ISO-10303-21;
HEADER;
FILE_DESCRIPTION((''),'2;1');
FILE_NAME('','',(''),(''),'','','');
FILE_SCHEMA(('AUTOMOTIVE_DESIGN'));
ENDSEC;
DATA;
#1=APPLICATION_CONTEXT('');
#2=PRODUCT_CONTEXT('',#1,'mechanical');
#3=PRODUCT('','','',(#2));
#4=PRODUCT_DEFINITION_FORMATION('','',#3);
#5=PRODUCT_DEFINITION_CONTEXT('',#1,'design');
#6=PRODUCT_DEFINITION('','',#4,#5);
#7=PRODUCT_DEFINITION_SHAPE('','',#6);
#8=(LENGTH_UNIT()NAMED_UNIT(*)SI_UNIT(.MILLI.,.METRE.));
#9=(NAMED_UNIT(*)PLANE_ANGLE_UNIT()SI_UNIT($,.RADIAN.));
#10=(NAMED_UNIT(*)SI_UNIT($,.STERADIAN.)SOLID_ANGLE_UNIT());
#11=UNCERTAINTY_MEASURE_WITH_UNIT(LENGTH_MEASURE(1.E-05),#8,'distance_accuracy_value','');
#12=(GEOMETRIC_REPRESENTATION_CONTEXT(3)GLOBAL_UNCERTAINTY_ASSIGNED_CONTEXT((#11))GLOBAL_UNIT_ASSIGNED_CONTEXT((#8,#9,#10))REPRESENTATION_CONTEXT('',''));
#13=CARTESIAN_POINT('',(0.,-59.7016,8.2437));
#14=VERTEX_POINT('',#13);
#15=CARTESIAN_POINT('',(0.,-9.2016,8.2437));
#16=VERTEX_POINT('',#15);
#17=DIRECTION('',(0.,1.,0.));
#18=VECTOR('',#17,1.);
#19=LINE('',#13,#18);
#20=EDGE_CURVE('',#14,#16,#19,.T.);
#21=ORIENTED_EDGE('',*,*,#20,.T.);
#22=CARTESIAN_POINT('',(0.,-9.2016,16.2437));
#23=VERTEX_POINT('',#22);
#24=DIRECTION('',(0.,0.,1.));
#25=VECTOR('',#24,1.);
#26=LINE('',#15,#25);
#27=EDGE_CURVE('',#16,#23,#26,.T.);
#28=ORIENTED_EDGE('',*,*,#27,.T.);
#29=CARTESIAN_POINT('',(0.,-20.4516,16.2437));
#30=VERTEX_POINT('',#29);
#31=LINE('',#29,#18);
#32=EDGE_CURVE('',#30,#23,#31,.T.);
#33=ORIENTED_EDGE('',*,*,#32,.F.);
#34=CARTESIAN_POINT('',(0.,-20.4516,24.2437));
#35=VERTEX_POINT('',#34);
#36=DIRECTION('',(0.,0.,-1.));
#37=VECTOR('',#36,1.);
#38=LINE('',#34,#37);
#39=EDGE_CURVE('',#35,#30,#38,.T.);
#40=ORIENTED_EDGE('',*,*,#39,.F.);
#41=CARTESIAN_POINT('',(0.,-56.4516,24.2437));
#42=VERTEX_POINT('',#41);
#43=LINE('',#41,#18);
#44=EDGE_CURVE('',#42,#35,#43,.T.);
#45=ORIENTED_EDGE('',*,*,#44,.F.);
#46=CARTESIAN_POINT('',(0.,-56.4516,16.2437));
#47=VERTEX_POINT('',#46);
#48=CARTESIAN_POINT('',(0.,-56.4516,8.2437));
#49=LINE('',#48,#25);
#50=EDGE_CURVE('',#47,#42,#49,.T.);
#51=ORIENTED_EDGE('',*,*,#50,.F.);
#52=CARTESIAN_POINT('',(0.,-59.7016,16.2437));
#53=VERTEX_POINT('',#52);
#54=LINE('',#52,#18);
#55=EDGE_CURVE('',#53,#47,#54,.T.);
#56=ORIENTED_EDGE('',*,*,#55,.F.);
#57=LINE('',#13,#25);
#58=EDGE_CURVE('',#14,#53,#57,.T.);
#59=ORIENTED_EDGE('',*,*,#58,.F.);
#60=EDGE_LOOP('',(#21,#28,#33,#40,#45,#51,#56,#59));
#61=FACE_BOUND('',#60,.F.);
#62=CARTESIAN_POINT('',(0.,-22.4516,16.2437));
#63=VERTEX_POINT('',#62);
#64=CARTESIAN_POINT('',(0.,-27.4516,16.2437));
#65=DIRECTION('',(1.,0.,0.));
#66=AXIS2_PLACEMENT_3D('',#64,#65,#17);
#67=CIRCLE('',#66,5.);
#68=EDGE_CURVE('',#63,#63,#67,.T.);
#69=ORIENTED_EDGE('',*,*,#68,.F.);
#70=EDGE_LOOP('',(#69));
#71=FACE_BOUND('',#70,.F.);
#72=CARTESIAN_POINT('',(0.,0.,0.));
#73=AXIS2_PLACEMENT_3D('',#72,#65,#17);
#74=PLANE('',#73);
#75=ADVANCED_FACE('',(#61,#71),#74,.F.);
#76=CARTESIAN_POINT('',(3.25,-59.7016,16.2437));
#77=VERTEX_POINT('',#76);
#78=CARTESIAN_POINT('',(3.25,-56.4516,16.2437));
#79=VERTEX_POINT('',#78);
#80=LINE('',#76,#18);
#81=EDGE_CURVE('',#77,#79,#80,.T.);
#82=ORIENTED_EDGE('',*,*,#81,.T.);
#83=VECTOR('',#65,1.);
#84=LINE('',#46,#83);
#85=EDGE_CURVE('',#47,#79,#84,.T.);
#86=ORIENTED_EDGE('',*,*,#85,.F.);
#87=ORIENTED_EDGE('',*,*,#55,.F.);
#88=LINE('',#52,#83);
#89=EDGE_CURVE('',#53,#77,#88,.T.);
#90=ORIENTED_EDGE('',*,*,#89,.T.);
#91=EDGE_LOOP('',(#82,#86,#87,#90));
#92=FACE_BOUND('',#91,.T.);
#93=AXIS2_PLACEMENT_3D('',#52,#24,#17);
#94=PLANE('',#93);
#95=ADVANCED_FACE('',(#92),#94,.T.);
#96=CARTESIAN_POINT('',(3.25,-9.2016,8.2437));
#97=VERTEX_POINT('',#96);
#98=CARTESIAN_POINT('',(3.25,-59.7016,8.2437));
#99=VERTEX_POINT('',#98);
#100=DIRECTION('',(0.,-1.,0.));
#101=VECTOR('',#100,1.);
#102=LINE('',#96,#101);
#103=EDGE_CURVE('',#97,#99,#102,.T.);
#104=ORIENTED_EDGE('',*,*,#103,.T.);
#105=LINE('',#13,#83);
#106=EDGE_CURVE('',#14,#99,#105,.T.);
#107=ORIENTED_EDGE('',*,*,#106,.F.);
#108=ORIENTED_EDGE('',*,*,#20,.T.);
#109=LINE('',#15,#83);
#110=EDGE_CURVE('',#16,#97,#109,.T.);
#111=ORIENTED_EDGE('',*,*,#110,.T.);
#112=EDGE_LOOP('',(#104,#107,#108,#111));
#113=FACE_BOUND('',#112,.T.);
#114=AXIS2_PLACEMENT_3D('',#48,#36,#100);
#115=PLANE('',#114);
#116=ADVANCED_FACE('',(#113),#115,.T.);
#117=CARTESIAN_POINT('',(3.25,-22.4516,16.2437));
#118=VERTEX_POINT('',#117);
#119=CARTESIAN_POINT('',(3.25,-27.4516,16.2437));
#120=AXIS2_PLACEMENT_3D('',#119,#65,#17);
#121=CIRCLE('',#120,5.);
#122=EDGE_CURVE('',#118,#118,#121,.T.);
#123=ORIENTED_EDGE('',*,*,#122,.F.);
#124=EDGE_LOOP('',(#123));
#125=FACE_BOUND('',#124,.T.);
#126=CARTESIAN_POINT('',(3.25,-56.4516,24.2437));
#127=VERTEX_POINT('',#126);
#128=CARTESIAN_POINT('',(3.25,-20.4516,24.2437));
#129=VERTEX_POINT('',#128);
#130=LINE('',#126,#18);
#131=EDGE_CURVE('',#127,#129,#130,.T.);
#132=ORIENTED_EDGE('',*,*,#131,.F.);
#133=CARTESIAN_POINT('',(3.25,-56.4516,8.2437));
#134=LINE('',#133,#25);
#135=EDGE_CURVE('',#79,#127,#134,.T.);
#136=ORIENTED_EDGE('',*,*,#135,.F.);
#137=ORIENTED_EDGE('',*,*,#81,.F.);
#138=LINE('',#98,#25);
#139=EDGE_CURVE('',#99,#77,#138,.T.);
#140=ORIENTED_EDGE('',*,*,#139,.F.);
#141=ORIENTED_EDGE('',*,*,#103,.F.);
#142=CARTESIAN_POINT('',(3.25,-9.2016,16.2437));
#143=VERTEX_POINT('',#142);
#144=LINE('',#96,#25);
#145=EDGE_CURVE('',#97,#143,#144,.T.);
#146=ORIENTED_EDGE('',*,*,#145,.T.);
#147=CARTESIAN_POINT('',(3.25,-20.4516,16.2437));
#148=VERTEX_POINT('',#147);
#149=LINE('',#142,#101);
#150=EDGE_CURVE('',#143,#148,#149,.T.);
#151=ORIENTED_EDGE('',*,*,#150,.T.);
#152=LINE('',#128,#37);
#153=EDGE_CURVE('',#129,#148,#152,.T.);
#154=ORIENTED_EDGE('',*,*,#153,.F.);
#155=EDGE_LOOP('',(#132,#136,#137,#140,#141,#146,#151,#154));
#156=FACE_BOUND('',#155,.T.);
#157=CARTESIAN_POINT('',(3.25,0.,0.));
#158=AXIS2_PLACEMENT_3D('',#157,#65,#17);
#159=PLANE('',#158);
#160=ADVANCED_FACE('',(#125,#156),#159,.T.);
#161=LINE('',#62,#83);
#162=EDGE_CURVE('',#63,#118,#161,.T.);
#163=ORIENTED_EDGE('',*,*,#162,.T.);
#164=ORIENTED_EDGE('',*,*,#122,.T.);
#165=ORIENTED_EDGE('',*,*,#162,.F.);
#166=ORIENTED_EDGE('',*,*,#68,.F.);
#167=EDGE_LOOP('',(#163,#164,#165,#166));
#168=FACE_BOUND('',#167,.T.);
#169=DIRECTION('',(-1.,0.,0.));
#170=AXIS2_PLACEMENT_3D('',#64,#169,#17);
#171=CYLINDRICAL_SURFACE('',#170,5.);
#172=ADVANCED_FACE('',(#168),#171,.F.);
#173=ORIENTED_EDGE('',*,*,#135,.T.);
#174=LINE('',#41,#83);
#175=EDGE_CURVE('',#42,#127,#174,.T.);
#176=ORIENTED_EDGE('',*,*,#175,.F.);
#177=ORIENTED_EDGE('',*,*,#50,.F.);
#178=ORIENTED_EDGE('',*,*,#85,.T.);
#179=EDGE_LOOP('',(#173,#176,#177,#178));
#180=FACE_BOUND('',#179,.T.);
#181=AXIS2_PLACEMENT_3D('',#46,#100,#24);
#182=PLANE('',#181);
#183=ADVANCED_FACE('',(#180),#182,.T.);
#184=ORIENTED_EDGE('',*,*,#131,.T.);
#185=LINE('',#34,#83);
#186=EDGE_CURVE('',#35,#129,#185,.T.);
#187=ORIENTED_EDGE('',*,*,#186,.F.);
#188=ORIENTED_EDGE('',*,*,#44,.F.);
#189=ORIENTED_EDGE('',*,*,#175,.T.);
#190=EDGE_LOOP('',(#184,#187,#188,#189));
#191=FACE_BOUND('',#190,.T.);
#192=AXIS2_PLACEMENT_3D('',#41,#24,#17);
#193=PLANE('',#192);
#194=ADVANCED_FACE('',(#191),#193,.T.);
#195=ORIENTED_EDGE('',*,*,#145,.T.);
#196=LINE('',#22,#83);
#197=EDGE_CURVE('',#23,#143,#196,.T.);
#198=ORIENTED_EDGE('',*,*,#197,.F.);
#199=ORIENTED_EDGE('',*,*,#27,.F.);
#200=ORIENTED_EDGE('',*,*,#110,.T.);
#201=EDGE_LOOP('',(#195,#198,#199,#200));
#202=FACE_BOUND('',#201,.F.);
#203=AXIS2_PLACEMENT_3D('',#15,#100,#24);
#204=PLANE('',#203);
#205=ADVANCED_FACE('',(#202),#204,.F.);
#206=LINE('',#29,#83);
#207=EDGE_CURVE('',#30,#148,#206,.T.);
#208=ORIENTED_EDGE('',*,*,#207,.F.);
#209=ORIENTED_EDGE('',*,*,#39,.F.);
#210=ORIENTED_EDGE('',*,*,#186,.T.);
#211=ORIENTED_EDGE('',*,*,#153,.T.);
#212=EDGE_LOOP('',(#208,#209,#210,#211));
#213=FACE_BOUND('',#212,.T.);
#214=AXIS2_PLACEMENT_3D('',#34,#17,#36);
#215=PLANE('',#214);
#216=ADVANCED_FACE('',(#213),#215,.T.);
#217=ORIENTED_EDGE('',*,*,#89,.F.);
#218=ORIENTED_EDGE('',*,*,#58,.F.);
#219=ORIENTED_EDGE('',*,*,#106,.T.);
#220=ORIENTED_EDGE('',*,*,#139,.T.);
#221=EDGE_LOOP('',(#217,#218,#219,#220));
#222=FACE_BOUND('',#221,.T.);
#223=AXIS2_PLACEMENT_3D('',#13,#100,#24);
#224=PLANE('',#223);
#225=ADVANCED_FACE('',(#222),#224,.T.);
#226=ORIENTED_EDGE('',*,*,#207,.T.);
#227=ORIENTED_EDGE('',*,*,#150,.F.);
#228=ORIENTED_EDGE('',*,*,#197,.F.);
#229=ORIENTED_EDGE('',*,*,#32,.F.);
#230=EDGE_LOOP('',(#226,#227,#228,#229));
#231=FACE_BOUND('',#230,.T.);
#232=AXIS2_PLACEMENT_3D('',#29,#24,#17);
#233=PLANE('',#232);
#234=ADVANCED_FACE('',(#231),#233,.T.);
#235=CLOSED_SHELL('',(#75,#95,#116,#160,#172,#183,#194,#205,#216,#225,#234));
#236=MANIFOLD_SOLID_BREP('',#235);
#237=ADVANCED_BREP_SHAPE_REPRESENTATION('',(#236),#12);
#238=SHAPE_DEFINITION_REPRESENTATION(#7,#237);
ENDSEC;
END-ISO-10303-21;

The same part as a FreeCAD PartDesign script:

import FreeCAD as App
import Part
import Sketcher

V = App.Vector


def add_polygon(sketch, points):
    """Adds a closed chain of lines whose ends are joined by coincident constraints."""
    first, n = sketch.GeometryCount, len(points)
    for a, b in zip(points, points[1:] + points[:1]):
        sketch.addGeometry(Part.LineSegment(App.Vector(*a, 0), App.Vector(*b, 0)), False)
    for i in range(n):
        sketch.addConstraint(Sketcher.Constraint("Coincident", first + i, 2, first + (i + 1) % n, 1))

doc = App.newDocument("Part")
params = doc.addObject("Spreadsheet::Sheet", "Params")
for row, (alias, value) in enumerate([
    ("sketch1_diameter", "10 mm"),
    ("sketch1_width", "36 mm"),
    ("sketch1_height", "8 mm"),
    ("sketch1_width2", "3.25 mm"),
    ("sketch1_width3", "50.5 mm"),
    ("pad1_length", "3.25 mm"),
], start=1):
    params.set(f"A{row}", alias)
    params.set(f"B{row}", "=" + value)
    params.setAlias(f"B{row}", alias)

body = doc.addObject("PartDesign::Body", "Body")

# Sketch on YZ plane
sketch1 = body.newObject("Sketcher::SketchObject", "Sketch")
sketch1.AttachmentSupport = (doc.getObject("YZ_Plane"), [""])
sketch1.MapMode = "FlatFace"
add_polygon(sketch1, [(-59.7, 8.2), (-9.2, 8.2), (-9.2, 16.2), (-20.5, 16.2), (-20.5, 24.2), (-56.5, 24.2), (-56.5, 16.2), (-59.7, 16.2)])  # lines 0-7
sketch1.addGeometry(Part.Circle(V(-27.5, 16.2, 0), V(0, 0, 1), 5), False)  # 8
sketch1.addConstraint(Sketcher.Constraint("Horizontal", 0))
sketch1.addConstraint(Sketcher.Constraint("Vertical", 1))
sketch1.addConstraint(Sketcher.Constraint("Horizontal", 2))
sketch1.addConstraint(Sketcher.Constraint("Vertical", 3))
sketch1.addConstraint(Sketcher.Constraint("Horizontal", 4))
sketch1.addConstraint(Sketcher.Constraint("Vertical", 5))
sketch1.addConstraint(Sketcher.Constraint("Horizontal", 6))
sketch1.addConstraint(Sketcher.Constraint("Vertical", 7))
sketch1.addConstraint(Sketcher.Constraint("Horizontal", 8, 3, 1, 2))
sketch1.addConstraint(Sketcher.Constraint("Horizontal", 2, 2, 5, 2))
sketch1.addConstraint(Sketcher.Constraint("Equal", 1, 3))
sketch1.addConstraint(Sketcher.Constraint("Diameter", 8, 10.0))
sketch1.addConstraint(Sketcher.Constraint("DistanceX", 4, 2, 4, 1, 36.0))
sketch1.addConstraint(Sketcher.Constraint("DistanceY", 1, 1, 1, 2, 8.0))
sketch1.addConstraint(Sketcher.Constraint("DistanceX", 6, 2, 6, 1, 3.25))
sketch1.addConstraint(Sketcher.Constraint("DistanceX", 0, 1, 0, 2, 50.5))
sketch1.addConstraint(Sketcher.Constraint("DistanceX", 8, 3, 2, 2, 7.0))
sketch1.addConstraint(Sketcher.Constraint("DistanceX", 8, 3, -1, 1, 27.4516))
sketch1.addConstraint(Sketcher.Constraint("DistanceY", -1, 1, 8, 3, 16.2437))
sketch1.setExpression("Constraints[19]", "Params.sketch1_diameter")
sketch1.setExpression("Constraints[20]", "Params.sketch1_width")
sketch1.setExpression("Constraints[21]", "Params.sketch1_height")
sketch1.setExpression("Constraints[22]", "Params.sketch1_width2")
sketch1.setExpression("Constraints[23]", "Params.sketch1_width3")
pad1 = body.newObject("PartDesign::Pad", "Pad")
pad1.Profile = sketch1
pad1.setExpression("Length", "Params.pad1_length")

doc.recompute()
